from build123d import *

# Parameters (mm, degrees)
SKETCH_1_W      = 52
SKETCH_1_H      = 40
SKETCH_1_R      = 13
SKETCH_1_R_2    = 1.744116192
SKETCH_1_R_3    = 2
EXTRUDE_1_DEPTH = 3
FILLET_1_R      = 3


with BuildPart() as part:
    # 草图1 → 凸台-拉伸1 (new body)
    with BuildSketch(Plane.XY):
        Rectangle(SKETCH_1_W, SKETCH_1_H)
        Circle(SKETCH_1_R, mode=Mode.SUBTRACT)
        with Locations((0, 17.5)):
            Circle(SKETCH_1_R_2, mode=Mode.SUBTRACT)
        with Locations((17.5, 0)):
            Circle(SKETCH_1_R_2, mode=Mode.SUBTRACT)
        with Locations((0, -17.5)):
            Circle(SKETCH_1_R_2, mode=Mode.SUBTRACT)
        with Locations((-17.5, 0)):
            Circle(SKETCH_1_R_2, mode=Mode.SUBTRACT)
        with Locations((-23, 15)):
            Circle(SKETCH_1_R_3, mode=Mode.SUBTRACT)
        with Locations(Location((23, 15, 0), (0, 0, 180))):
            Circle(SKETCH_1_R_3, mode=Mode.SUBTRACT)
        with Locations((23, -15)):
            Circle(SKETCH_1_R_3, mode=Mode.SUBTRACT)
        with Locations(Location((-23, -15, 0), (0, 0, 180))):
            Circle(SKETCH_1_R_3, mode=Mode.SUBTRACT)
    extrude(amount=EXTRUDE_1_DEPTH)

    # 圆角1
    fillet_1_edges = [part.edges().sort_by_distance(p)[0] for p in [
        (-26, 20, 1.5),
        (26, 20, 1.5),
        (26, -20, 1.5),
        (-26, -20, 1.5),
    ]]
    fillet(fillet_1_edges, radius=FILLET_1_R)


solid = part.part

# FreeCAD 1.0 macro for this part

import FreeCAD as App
import Part
import Sketcher


def edges_at(feature, points):
    """Names of the edges that pass closest to the given points."""
    edges = feature.Shape.Edges
    near = lambda p: min(range(len(edges)), key=lambda i: edges[i].distToShape(Part.Vertex(*p))[0])
    return sorted({f"Edge{near(p) + 1}" for p in points})


def add_polygon(sketch, points):
    """Adds a closed chain of lines whose ends are joined by coincident constraints."""
    first, n = sketch.GeometryCount, len(points)
    for a, b in zip(points, points[1:] + points[:1]):
        sketch.addGeometry(Part.LineSegment(App.Vector(*a, 0), App.Vector(*b, 0)), False)
    for i in range(n):
        sketch.addConstraint(Sketcher.Constraint("Coincident", first + i, 2, first + (i + 1) % n, 1))

doc = App.newDocument("Part")
body = doc.addObject("PartDesign::Body", "Body")

# Sketch on XY plane
sketch1 = body.newObject("Sketcher::SketchObject", "Sketch")
sketch1.AttachmentSupport = (doc.getObject("XY_Plane"), [""])
sketch1.MapMode = "FlatFace"
add_polygon(sketch1, [(-26, 20), (-26, -20), (26, -20), (26, 20)])  # lines 0-3
sketch1.addGeometry(Part.Circle(App.Vector(-23, -15, 0), App.Vector(0, 0, 1), 2), False)  # 4
sketch1.addGeometry(Part.Circle(App.Vector(0, -17.5, 0), App.Vector(0, 0, 1), 1.7), False)  # 5
sketch1.addGeometry(Part.Circle(App.Vector(23, -15, 0), App.Vector(0, 0, 1), 2), False)  # 6
sketch1.addGeometry(Part.Circle(App.Vector(-17.5, 0, 0), App.Vector(0, 0, 1), 1.7), False)  # 7
sketch1.addGeometry(Part.Circle(App.Vector(-23, 15, 0), App.Vector(0, 0, 1), 2), False)  # 8
sketch1.addGeometry(Part.Circle(App.Vector(0, 0, 0), App.Vector(0, 0, 1), 13), False)  # 9
sketch1.addGeometry(Part.Circle(App.Vector(17.5, 0, 0), App.Vector(0, 0, 1), 1.7), False)  # 10
sketch1.addGeometry(Part.Circle(App.Vector(0, 17.5, 0), App.Vector(0, 0, 1), 1.7), False)  # 11
sketch1.addGeometry(Part.Circle(App.Vector(23, 15, 0), App.Vector(0, 0, 1), 2), False)  # 12
sketch1.addConstraint([
    Sketcher.Constraint("Vertical", 0),
    Sketcher.Constraint("Horizontal", 1),
    Sketcher.Constraint("Vertical", 2),
    Sketcher.Constraint("Horizontal", 3),
    Sketcher.Constraint("Coincident", 9, 3, -1, 1),
    Sketcher.Constraint("Equal", 4, 6),
    Sketcher.Constraint("Equal", 5, 7),
    Sketcher.Constraint("Equal", 6, 8),
    Sketcher.Constraint("Equal", 7, 10),
    Sketcher.Constraint("Equal", 10, 11),
    Sketcher.Constraint("Equal", 8, 12),
    Sketcher.Constraint("Symmetric", 6, 3, 8, 3, -1, 1),
    Sketcher.Constraint("Symmetric", 7, 3, 10, 3, -1, 1),
    Sketcher.Constraint("Symmetric", 5, 3, 11, 3, -1, 1),
    Sketcher.Constraint("Symmetric", 4, 3, 12, 3, -1, 1),
    Sketcher.Constraint("Symmetric", 0, 2, 2, 2, -1, 1),
    Sketcher.Constraint("Symmetric", 4, 3, 6, 3, -2),
    Sketcher.Constraint("PointOnObject", 5, 3, -2),
    Sketcher.Constraint("PointOnObject", 7, 3, -1),
    Sketcher.Constraint("Diameter", 4, 4.0),
    Sketcher.Constraint("Diameter", 9, 26.0),
    Sketcher.Constraint("DistanceX", 1, 1, 1, 2, 52.0),
    Sketcher.Constraint("DistanceY", 0, 2, 0, 1, 40.0),
    Sketcher.Constraint("DistanceX", 4, 3, -1, 1, 23.0),
    Sketcher.Constraint("DistanceY", 4, 3, -1, 1, 15.0),
    Sketcher.Constraint("DistanceX", 7, 3, 10, 3, 35.0),
    Sketcher.Constraint("DistanceY", 5, 3, 11, 3, 35.0),
    Sketcher.Constraint("Diameter", 5, 3.488232),
])
pad1 = body.newObject("PartDesign::Pad", "Pad")
pad1.Profile = sketch1
pad1.Length = 3
doc.recompute()

fillet = body.newObject("PartDesign::Fillet", "Fillet")
fillet.Base = (pad1, edges_at(pad1, [
    (-26, 20, 1.5),
    (26, 20, 1.5),
    (26, -20, 1.5),
    (-26, -20, 1.5),
]))
fillet.Radius = 3

doc.recompute()
